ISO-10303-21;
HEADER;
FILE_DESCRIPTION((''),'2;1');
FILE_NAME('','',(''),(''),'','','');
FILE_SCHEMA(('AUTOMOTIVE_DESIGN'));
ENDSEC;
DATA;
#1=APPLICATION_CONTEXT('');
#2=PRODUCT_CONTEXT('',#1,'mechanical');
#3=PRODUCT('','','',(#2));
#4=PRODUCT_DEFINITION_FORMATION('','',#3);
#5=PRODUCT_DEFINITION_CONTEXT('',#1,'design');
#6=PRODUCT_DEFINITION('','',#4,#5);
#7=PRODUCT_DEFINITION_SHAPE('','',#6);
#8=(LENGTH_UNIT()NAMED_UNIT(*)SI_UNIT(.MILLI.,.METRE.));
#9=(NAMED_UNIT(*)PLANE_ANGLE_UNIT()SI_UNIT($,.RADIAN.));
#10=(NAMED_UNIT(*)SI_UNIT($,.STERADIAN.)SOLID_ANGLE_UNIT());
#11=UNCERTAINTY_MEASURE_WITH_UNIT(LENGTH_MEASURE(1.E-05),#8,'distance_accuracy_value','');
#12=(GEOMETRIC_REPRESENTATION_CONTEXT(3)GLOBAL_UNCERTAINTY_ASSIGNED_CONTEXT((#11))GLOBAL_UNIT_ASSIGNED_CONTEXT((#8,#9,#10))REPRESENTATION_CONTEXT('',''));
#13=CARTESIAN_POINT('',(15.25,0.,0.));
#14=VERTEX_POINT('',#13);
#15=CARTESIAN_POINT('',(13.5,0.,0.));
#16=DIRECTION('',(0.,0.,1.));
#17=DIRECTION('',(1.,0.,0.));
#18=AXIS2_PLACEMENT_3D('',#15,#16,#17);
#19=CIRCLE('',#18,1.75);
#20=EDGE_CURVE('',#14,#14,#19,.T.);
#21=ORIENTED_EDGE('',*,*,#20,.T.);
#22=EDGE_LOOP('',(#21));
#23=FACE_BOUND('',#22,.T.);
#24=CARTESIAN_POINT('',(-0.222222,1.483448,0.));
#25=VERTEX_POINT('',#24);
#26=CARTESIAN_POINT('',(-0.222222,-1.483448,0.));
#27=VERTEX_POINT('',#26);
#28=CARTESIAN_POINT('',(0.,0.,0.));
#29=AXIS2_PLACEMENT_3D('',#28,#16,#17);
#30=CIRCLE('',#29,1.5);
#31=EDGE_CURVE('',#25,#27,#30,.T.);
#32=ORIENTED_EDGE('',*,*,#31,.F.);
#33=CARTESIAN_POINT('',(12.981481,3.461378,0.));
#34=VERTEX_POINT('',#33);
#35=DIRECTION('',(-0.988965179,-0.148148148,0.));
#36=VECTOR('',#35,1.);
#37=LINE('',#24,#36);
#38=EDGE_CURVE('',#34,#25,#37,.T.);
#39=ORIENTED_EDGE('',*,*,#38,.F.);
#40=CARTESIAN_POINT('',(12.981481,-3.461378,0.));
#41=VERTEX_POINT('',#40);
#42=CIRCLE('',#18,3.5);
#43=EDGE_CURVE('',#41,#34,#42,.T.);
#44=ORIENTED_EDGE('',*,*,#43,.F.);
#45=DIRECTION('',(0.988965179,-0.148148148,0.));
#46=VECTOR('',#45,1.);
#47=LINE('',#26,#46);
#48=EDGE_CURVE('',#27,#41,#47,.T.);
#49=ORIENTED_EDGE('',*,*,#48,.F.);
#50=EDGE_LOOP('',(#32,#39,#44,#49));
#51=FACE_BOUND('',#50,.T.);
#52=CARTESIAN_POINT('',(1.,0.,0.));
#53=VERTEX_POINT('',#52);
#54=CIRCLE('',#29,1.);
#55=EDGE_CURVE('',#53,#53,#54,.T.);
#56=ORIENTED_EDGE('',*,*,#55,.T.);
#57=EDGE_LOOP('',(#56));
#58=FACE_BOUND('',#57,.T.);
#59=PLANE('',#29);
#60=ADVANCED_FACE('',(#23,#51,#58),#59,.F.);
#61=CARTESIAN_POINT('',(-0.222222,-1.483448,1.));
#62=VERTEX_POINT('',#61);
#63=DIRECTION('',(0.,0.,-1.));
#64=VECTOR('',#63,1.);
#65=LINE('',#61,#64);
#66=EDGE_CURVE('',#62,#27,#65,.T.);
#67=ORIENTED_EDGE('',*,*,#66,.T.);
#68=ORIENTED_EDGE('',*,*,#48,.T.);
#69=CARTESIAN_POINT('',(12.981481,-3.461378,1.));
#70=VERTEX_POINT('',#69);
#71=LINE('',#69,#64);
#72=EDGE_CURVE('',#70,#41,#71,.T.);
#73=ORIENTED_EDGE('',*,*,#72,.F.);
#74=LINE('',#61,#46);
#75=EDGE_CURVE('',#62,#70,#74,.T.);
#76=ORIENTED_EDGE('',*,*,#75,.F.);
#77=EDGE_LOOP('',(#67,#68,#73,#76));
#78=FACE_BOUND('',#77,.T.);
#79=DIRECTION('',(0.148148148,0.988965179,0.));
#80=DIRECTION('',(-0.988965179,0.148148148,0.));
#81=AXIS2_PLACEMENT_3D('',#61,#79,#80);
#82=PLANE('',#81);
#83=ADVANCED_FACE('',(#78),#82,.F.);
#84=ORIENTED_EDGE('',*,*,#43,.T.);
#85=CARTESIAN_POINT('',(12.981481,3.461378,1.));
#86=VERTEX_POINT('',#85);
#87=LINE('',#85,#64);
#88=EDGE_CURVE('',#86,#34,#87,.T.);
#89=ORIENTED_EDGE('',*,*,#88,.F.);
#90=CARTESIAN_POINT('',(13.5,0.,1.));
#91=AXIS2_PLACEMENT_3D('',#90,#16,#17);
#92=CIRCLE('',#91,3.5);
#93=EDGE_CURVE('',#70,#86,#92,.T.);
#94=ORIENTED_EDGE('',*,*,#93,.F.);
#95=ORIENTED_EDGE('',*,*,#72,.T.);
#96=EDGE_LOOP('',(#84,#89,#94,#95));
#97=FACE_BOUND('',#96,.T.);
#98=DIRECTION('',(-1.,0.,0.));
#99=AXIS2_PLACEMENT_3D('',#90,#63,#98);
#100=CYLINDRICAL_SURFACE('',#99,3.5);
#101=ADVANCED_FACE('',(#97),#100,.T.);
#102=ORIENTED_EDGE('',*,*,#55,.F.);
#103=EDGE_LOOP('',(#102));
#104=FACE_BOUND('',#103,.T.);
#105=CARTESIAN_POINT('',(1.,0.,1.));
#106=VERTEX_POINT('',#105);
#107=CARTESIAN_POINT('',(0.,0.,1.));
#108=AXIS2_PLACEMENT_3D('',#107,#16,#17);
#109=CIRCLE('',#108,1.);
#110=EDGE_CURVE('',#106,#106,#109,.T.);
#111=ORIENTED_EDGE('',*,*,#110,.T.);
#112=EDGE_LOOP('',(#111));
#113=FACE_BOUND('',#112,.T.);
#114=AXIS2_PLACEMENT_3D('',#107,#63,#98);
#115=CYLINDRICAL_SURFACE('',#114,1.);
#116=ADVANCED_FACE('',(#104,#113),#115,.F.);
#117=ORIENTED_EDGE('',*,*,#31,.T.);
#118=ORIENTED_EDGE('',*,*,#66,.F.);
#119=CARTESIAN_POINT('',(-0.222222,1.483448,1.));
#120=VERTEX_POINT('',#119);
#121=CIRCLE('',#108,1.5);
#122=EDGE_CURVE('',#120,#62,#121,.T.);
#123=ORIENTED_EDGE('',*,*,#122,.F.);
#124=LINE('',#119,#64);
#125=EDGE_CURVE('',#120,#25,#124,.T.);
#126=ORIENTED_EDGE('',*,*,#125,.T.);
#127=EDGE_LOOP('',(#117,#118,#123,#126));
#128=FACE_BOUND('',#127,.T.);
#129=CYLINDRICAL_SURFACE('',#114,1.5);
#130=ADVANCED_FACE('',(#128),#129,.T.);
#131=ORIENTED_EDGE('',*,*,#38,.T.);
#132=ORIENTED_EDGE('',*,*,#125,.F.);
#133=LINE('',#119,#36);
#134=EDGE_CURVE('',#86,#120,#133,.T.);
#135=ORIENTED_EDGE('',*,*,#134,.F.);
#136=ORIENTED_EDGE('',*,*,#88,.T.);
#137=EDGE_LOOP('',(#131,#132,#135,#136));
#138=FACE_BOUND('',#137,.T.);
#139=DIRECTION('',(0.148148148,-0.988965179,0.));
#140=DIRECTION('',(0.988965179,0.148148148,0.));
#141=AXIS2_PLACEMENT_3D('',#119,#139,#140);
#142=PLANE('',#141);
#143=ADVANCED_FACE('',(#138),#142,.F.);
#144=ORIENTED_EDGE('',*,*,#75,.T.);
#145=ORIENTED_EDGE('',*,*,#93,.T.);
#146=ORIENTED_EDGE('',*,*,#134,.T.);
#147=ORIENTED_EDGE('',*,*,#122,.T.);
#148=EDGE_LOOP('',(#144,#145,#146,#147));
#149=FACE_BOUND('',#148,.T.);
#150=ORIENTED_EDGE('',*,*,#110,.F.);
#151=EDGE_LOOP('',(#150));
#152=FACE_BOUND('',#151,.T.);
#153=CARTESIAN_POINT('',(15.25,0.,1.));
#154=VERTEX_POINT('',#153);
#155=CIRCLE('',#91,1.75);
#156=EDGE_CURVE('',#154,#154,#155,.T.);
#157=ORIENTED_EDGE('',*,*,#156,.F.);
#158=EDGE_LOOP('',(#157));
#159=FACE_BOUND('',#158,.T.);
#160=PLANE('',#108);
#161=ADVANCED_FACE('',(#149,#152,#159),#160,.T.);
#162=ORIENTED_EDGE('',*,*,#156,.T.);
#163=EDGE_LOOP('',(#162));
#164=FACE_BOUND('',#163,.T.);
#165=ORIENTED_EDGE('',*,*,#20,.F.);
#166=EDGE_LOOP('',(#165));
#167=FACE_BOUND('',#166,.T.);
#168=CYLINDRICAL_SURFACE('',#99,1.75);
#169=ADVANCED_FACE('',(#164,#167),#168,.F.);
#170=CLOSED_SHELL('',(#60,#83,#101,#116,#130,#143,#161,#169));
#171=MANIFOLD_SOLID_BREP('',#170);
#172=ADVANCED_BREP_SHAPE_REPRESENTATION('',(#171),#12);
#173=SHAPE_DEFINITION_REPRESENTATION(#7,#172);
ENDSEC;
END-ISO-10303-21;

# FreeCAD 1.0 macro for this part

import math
import FreeCAD as App
import Part
import Sketcher
from FreeCAD import Vector

doc = App.newDocument("Part")
params = doc.addObject("Spreadsheet::Sheet", "Params")
for row, (alias, value) in enumerate([
    ("sketch1_diameter", "2 mm"),
    ("sketch1_diameter2", "3.5 mm"),
    ("sketch1_radius", "1.5 mm"),
    ("sketch1_radius2", "3.5 mm"),
    ("pad1_length", "1 mm"),
], start=1):
    params.set(f"A{row}", alias)
    params.set(f"B{row}", "=" + value)
    params.setAlias(f"B{row}", alias)

body = doc.addObject("PartDesign::Body", "Body")

# Sketch on XY plane
sketch1 = body.newObject("Sketcher::SketchObject", "Sketch")
sketch1.AttachmentSupport = (doc.getObject("XY_Plane"), [""])
sketch1.MapMode = "FlatFace"
sketch1.addGeometry([
    Part.LineSegment(Vector(13, 3.5, 0), Vector(-0.2, 1.5, 0)),  # 0
    Part.ArcOfCircle(Part.Circle(Vector(0, 0, 0), Vector(0, 0, 1), 1.5), math.radians(99), math.radians(261)),  # 1
    Part.LineSegment(Vector(-0.2, -1.5, 0), Vector(13, -3.5, 0)),  # 2
    Part.ArcOfCircle(Part.Circle(Vector(13.5, 0, 0), Vector(0, 0, 1), 3.5), math.radians(-99), math.radians(99)),  # 3
    Part.Circle(Vector(13.5, 0, 0), Vector(0, 0, 1), 1.8),  # 4
    Part.Circle(Vector(0, 0, 0), Vector(0, 0, 1), 1),  # 5
], False)
sketch1.addConstraint([
    Sketcher.Constraint("Tangent", 0, 2, 1, 1),
    Sketcher.Constraint("Tangent", 1, 2, 2, 1),
    Sketcher.Constraint("Tangent", 2, 2, 3, 1),
    Sketcher.Constraint("Tangent", 3, 2, 0, 1),
    Sketcher.Constraint("Coincident", 1, 3, -1, 1),
    Sketcher.Constraint("Coincident", 5, 3, -1, 1),
    Sketcher.Constraint("Coincident", 4, 3, 3, 3),
    Sketcher.Constraint("PointOnObject", 3, 3, -1),
    Sketcher.Constraint("Diameter", 5, 2.0),
    Sketcher.Constraint("Diameter", 4, 3.5),
    Sketcher.Constraint("Radius", 1, 1.5),
    Sketcher.Constraint("Radius", 3, 3.5),
    Sketcher.Constraint("DistanceX", -1, 1, 3, 3, 13.5),
])
sketch1.setExpression("Constraints[8]", "Params.sketch1_diameter")
sketch1.setExpression("Constraints[9]", "Params.sketch1_diameter2")
sketch1.setExpression("Constraints[10]", "Params.sketch1_radius")
sketch1.setExpression("Constraints[11]", "Params.sketch1_radius2")
pad1 = body.newObject("PartDesign::Pad", "Pad")
pad1.Profile = sketch1
pad1.setExpression("Length", "Params.pad1_length")

doc.recompute()
